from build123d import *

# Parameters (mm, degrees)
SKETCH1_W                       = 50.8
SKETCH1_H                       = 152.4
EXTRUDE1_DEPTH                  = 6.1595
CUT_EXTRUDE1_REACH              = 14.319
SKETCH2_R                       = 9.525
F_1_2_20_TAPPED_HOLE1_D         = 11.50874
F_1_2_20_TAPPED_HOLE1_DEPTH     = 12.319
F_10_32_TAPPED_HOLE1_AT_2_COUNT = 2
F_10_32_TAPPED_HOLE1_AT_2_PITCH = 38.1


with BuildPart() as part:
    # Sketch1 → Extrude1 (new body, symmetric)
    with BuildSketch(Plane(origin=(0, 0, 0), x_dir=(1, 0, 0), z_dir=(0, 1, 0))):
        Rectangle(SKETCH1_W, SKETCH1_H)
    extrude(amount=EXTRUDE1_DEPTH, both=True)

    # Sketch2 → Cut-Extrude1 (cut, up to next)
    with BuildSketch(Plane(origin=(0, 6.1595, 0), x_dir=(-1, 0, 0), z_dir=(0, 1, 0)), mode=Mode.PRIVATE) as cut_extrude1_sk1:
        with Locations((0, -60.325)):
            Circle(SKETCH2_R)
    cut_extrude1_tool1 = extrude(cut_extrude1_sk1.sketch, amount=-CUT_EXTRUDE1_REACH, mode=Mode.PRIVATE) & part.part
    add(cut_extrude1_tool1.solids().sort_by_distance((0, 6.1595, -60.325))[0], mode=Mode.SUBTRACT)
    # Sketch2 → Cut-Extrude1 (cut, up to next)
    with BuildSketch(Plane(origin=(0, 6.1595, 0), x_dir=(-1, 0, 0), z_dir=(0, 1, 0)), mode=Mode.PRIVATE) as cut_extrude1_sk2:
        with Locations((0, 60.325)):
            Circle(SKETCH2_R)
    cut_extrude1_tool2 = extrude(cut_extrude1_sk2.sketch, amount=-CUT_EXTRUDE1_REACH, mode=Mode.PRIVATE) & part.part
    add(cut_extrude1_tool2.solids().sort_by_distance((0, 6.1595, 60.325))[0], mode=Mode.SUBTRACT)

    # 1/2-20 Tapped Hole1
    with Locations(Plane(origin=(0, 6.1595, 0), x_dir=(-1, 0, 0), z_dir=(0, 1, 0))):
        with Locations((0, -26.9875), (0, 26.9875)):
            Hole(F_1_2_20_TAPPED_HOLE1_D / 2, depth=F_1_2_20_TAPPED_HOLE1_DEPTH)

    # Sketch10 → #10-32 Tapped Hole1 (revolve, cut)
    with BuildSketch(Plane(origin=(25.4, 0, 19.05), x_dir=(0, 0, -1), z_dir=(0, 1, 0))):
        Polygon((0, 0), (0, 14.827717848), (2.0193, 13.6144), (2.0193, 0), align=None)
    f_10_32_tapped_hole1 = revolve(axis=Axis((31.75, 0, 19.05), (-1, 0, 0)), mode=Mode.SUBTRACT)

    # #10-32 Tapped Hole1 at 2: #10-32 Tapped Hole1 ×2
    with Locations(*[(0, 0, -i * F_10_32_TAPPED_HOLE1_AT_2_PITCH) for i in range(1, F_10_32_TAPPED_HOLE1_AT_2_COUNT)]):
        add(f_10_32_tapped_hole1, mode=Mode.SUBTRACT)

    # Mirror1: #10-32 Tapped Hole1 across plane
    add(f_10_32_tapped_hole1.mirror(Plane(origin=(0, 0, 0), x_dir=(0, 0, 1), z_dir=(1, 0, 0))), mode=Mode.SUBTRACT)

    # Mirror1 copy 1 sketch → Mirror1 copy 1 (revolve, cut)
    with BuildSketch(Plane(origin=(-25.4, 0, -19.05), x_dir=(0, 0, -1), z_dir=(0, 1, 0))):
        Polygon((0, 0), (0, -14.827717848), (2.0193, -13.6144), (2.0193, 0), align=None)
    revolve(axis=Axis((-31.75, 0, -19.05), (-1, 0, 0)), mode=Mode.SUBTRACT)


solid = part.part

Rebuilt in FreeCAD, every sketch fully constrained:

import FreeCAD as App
import Part
import Sketcher
Q = App.Units.Quantity


def add_polygon(sketch, points):
    """Adds a closed chain of lines whose ends are joined by coincident constraints."""
    first, n = sketch.GeometryCount, len(points)
    for a, b in zip(points, points[1:] + points[:1]):
        sketch.addGeometry(Part.LineSegment(App.Vector(*a, 0), App.Vector(*b, 0)), False)
    for i in range(n):
        sketch.addConstraint(Sketcher.Constraint("Coincident", first + i, 2, first + (i + 1) % n, 1))

doc = App.newDocument("Part")
body = doc.addObject("PartDesign::Body", "Body")

# Sketch on XZ plane
sketch1 = body.newObject("Sketcher::SketchObject", "Sketch")
sketch1.AttachmentSupport = (doc.getObject("XZ_Plane"), [""])
sketch1.MapMode = "FlatFace"
add_polygon(sketch1, [(-25.4, -76.2), (-25.4, 76.2), (25.4, 76.2), (25.4, -76.2)])  # lines 0-3
sketch1.addConstraint(Sketcher.Constraint("Vertical", 0))
sketch1.addConstraint(Sketcher.Constraint("Horizontal", 1))
sketch1.addConstraint(Sketcher.Constraint("Vertical", 2))
sketch1.addConstraint(Sketcher.Constraint("Horizontal", 3))
sketch1.addConstraint(Sketcher.Constraint("Symmetric", 0, 2, 2, 2, -1, 1))
sketch1.addConstraint(Sketcher.Constraint("DistanceX", 1, 1, 1, 2, Q("2 in")))
sketch1.addConstraint(Sketcher.Constraint("DistanceY", 0, 1, 0, 2, Q("6 in")))
pad1 = body.newObject("PartDesign::Pad", "Pad")
pad1.Profile = sketch1
pad1.Length = Q("0.485 in")
pad1.Midplane = True

# Sketch on XZ plane
sketch2 = body.newObject("Sketcher::SketchObject", "Sketch001")
sketch2.AttachmentSupport = (doc.getObject("XZ_Plane"), [""])
sketch2.MapMode = "FlatFace"
sketch2.AttachmentOffset = App.Placement(App.Vector(0, 0, -0.2425 * 25.4), App.Rotation())
sketch2.addGeometry(Part.Circle(App.Vector(0, -60.325, 0), App.Vector(0, 0, 1), 9.525), False)
sketch2.addConstraint(Sketcher.Constraint("PointOnObject", 0, 3, -2))
sketch2.addConstraint(Sketcher.Constraint("Diameter", 0, Q("0.75 in")))
sketch2.addConstraint(Sketcher.Constraint("DistanceY", 0, 3, -1, 1, Q("2.375 in")))
pocket1 = body.newObject("PartDesign::Pocket", "Pocket")
pocket1.Profile = sketch2
pocket1.Type = "UpToFirst"
pocket1.Reversed = True

# Sketch on XZ plane
sketch3 = body.newObject("Sketcher::SketchObject", "Sketch002")
sketch3.AttachmentSupport = (doc.getObject("XZ_Plane"), [""])
sketch3.MapMode = "FlatFace"
sketch3.AttachmentOffset = App.Placement(App.Vector(0, 0, -0.2425 * 25.4), App.Rotation())
sketch3.addGeometry(Part.Circle(App.Vector(0, 60.325, 0), App.Vector(0, 0, 1), 9.525), False)
sketch3.addConstraint(Sketcher.Constraint("PointOnObject", 0, 3, -2))
sketch3.addConstraint(Sketcher.Constraint("Diameter", 0, Q("0.75 in")))
sketch3.addConstraint(Sketcher.Constraint("DistanceY", -1, 1, 0, 3, Q("2.375 in")))
pocket2 = body.newObject("PartDesign::Pocket", "Pocket001")
pocket2.Profile = sketch3
pocket2.Type = "UpToFirst"
pocket2.Reversed = True

# Sketch on XZ plane
sketch4 = body.newObject("Sketcher::SketchObject", "Sketch003")
sketch4.AttachmentSupport = (doc.getObject("XZ_Plane"), [""])
sketch4.MapMode = "FlatFace"
sketch4.AttachmentOffset = App.Placement(App.Vector(0, 0, -0.2425 * 25.4), App.Rotation())
sketch4.addGeometry(Part.Circle(App.Vector(0, -26.9875, 0), App.Vector(0, 0, 1), 5.75437), False)
sketch4.addGeometry(Part.Circle(App.Vector(0, 26.9875, 0), App.Vector(0, 0, 1), 5.75437), False)
sketch4.addConstraint(Sketcher.Constraint("Equal", 0, 1))
sketch4.addConstraint(Sketcher.Constraint("Symmetric", 0, 3, 1, 3, -1, 1))
sketch4.addConstraint(Sketcher.Constraint("PointOnObject", 0, 3, -2))
sketch4.addConstraint(Sketcher.Constraint("Diameter", 0, Q("0.4531 in")))
sketch4.addConstraint(Sketcher.Constraint("DistanceY", 0, 3, -1, 1, Q("1.0625 in")))
doc.recompute()
hole = body.newObject("PartDesign::Hole", "Hole")
hole.Profile = sketch4
hole.ThreadType = "None"
hole.Diameter = Q("0.4531 in")
hole.DepthType = "Dimension"
hole.Depth = Q("0.485 in")
hole.DrillPoint = "Flat"
hole.Reversed = True

# Sketch on XZ plane
sketch5 = body.newObject("Sketcher::SketchObject", "Sketch004")
sketch5.AttachmentSupport = (doc.getObject("XZ_Plane"), [""])
sketch5.MapMode = "FlatFace"
add_polygon(sketch5, [(10.572282, 19.05), (25.4, 19.05), (25.4, 17.0307), (11.7856, 17.0307)])  # lines 0-3
sketch5.addGeometry(Part.LineSegment(App.Vector(25.4, 19.05, 0), App.Vector(10.572282, 19.05, 0)), True)  # axis
sketch5.addConstraint(Sketcher.Constraint("Horizontal", 0))
sketch5.addConstraint(Sketcher.Constraint("Vertical", 1))
sketch5.addConstraint(Sketcher.Constraint("Horizontal", 2))
sketch5.addConstraint(Sketcher.Constraint("Horizontal", 4))
sketch5.addConstraint(Sketcher.Constraint("Coincident", 4, 1, 0, 2))
sketch5.addConstraint(Sketcher.Constraint("Equal", 0, 4))
sketch5.addConstraint(Sketcher.Constraint("DistanceX", -1, 1, 0, 2, Q("1 in")))
sketch5.addConstraint(Sketcher.Constraint("Angle", 3, Q("121 deg")))
sketch5.addConstraint(Sketcher.Constraint("DistanceX", 2, 2, 2, 1, Q("0.536 in")))
sketch5.addConstraint(Sketcher.Constraint("DistanceY", -1, 1, 0, 2, Q("0.75 in")))
sketch5.addConstraint(Sketcher.Constraint("DistanceY", 1, 2, 1, 1, Q("0.0795 in")))
groove = body.newObject("PartDesign::Groove", "Groove")
groove.Profile = sketch5
groove.ReferenceAxis = (sketch5, ["Axis0"])
groove.Angle = 360
doc.recompute()

linearpattern = body.newObject("PartDesign::LinearPattern", "LinearPattern")
linearpattern.Originals = [groove]
linearpattern.Direction = (doc.getObject("Z_Axis"), [""])
linearpattern.Mode = "offset"
linearpattern.Offset = Q("1.5 in")
linearpattern.Occurrences = 2
linearpattern.Reversed = True
body.Tip = linearpattern
doc.recompute()

mirrored = body.newObject("PartDesign::Mirrored", "Mirrored")
mirrored.Originals = [groove]
mirrored.MirrorPlane = (doc.getObject("YZ_Plane"), [""])
body.Tip = mirrored

# Sketch on XZ plane
sketch6 = body.newObject("Sketcher::SketchObject", "Sketch005")
sketch6.AttachmentSupport = (doc.getObject("XZ_Plane"), [""])
sketch6.MapMode = "FlatFace"
add_polygon(sketch6, [(-25.4, -19.05), (-10.572282, -19.05), (-11.7856, -21.0693), (-25.4, -21.0693)])  # lines 0-3
sketch6.addGeometry(Part.LineSegment(App.Vector(-10.572282, -19.05, 0), App.Vector(-25.4, -19.05, 0)), True)  # axis
sketch6.addConstraint(Sketcher.Constraint("Horizontal", 0))
sketch6.addConstraint(Sketcher.Constraint("Horizontal", 2))
sketch6.addConstraint(Sketcher.Constraint("Vertical", 3))
sketch6.addConstraint(Sketcher.Constraint("Horizontal", 4))
sketch6.addConstraint(Sketcher.Constraint("Coincident", 4, 1, 0, 2))
sketch6.addConstraint(Sketcher.Constraint("Vertical", 2, 2, 4, 2))
sketch6.addConstraint(Sketcher.Constraint("DistanceX", 2, 2, -1, 1, Q("1 in")))
sketch6.addConstraint(Sketcher.Constraint("Angle", 1, Q("-121 deg")))
sketch6.addConstraint(Sketcher.Constraint("DistanceX", 2, 2, 2, 1, Q("0.536 in")))
sketch6.addConstraint(Sketcher.Constraint("DistanceY", 0, 2, -1, 1, Q("0.75 in")))
sketch6.addConstraint(Sketcher.Constraint("DistanceY", 3, 1, 3, 2, Q("0.0795 in")))
groove2 = body.newObject("PartDesign::Groove", "Groove001")
groove2.Profile = sketch6
groove2.ReferenceAxis = (sketch6, ["Axis0"])
groove2.Angle = 360

doc.recompute()
